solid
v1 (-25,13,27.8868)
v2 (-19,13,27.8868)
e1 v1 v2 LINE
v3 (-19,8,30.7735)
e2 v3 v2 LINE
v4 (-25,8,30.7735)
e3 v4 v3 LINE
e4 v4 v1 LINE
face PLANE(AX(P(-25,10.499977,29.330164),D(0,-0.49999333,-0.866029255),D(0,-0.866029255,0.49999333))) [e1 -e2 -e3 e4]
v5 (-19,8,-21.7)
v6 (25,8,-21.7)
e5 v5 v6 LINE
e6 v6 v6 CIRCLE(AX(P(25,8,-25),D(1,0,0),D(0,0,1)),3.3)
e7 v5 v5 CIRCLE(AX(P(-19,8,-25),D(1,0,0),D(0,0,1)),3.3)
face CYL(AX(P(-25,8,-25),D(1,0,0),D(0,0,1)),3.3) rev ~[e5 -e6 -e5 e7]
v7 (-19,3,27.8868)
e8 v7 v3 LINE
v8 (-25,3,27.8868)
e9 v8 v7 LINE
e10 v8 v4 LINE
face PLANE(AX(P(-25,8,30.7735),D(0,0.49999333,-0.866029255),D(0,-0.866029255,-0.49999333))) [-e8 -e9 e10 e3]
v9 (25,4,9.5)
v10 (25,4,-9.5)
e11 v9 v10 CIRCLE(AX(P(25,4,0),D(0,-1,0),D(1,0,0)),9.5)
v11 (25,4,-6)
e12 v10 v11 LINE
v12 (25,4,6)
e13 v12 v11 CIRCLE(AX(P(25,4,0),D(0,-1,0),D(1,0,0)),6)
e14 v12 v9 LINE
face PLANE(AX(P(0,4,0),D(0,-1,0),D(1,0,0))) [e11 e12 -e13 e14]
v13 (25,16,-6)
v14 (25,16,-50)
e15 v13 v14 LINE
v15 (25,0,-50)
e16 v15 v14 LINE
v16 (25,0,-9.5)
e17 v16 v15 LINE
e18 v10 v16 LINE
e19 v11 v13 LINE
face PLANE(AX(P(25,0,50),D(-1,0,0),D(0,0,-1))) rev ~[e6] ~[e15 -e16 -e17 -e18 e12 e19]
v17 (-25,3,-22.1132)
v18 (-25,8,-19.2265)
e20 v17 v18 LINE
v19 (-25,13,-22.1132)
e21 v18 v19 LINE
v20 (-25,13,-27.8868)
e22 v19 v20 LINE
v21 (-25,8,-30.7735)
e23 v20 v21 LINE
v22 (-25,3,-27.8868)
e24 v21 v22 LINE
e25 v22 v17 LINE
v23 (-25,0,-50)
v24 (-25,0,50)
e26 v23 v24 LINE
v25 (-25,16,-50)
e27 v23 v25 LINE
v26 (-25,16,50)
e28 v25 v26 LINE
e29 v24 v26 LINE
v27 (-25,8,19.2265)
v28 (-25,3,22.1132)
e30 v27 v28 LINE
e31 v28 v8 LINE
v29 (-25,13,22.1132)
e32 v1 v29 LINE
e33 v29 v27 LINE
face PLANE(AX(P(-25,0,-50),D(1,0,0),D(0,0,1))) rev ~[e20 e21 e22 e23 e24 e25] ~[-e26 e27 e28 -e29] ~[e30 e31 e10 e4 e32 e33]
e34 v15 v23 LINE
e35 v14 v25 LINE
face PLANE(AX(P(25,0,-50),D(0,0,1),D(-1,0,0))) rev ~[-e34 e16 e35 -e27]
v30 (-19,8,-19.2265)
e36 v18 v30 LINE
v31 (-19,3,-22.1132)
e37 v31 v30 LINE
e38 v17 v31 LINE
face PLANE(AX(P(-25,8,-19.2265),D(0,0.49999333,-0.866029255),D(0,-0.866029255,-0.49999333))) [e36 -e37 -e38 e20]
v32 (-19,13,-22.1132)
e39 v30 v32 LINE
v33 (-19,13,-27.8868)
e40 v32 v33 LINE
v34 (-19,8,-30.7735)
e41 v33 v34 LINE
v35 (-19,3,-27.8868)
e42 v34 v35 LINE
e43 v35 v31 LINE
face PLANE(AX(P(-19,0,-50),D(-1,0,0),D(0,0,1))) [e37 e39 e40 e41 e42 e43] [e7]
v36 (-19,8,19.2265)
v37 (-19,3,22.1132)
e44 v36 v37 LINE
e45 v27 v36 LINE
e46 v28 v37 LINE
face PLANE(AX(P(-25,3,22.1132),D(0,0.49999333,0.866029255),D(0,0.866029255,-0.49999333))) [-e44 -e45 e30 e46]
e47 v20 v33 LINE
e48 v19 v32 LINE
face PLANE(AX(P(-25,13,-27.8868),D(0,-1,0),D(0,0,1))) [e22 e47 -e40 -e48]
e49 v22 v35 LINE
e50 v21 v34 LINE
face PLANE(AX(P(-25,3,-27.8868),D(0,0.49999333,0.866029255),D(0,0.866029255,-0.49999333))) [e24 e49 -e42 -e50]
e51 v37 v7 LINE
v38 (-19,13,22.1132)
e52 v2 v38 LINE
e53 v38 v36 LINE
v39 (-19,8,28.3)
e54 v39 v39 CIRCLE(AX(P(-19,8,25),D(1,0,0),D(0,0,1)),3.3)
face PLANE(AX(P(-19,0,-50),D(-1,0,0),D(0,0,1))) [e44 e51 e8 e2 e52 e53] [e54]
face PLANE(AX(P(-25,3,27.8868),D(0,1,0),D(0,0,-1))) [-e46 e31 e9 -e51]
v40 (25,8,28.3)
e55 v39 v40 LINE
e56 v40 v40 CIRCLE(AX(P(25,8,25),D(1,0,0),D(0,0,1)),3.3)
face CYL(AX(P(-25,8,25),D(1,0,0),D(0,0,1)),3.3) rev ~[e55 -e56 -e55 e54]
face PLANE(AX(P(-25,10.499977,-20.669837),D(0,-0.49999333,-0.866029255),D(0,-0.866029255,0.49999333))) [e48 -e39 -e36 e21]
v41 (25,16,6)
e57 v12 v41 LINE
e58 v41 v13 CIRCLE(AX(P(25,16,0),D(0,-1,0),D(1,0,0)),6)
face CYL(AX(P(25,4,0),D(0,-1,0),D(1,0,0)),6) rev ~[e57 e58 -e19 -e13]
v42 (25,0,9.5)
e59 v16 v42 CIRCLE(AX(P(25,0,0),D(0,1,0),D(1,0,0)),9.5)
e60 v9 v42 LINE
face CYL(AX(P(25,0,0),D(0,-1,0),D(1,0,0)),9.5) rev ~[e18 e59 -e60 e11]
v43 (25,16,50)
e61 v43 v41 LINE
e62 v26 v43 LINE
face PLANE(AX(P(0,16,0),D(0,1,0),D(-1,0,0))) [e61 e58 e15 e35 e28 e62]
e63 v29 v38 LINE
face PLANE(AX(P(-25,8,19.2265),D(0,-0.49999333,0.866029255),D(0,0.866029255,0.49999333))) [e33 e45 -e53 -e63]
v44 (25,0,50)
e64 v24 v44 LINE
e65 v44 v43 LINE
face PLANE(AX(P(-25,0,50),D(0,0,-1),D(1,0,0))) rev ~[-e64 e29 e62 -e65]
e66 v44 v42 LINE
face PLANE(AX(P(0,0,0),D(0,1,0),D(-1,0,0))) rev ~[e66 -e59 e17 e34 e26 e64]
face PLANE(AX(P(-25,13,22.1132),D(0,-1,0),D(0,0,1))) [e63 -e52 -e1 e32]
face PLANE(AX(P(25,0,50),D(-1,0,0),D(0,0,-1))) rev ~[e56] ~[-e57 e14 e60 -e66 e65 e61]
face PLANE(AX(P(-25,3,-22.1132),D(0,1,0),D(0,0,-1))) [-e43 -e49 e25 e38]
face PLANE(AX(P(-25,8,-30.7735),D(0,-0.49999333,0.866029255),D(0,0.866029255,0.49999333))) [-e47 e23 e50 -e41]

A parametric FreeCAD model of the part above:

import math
import FreeCAD as App
import Part
import Sketcher
Q = App.Units.Quantity


def add_polygon(sketch, points):
    """Adds a closed chain of lines whose ends are joined by coincident constraints."""
    first, n = sketch.GeometryCount, len(points)
    for a, b in zip(points, points[1:] + points[:1]):
        sketch.addGeometry(Part.LineSegment(App.Vector(*a, 0), App.Vector(*b, 0)), False)
    for i in range(n):
        sketch.addConstraint(Sketcher.Constraint("Coincident", first + i, 2, first + (i + 1) % n, 1))

doc = App.newDocument("Part")
body = doc.addObject("PartDesign::Body", "Body")

sketch1 = doc.addObject("Sketcher::SketchObject", "Sketch")
body.addObject(sketch1)
sketch1.AttachmentSupport = (doc.XZ_Plane, [""])
sketch1.MapMode = "FlatFace"
add_polygon(sketch1, [(-25, -50), (-25, 50), (25, 50), (25, -50)])
sketch1.addConstraint(Sketcher.Constraint("Vertical", 0))
sketch1.addConstraint(Sketcher.Constraint("Horizontal", 1))
sketch1.addConstraint(Sketcher.Constraint("Vertical", 2))
sketch1.addConstraint(Sketcher.Constraint("Horizontal", 3))
sketch1.addConstraint(Sketcher.Constraint("Symmetric", 0, 2, 2, 2, -1, 1))
sketch1.addConstraint(Sketcher.Constraint("DistanceX", 1, 1, 1, 2, 50.0))
sketch1.addConstraint(Sketcher.Constraint("DistanceY", 0, 1, 0, 2, 100.0))
pad1 = doc.addObject("PartDesign::Pad", "Pad")
body.addObject(pad1)
pad1.Profile = sketch1
pad1.Length = 16
pad1.Reversed = True

sketch2 = doc.addObject("Sketcher::SketchObject", "Sketch001")
body.addObject(sketch2)
sketch2.AttachmentSupport = (doc.XZ_Plane, [""])
sketch2.MapMode = "FlatFace"
sketch2.addGeometry(Part.Circle(App.Vector(25, 0, 0), App.Vector(0, 0, 1), 9.5), False)
sketch2.addConstraint(Sketcher.Constraint("PointOnObject", 0, 3, -1))
sketch2.addConstraint(Sketcher.Constraint("Diameter", 0, 19.0))
sketch2.addConstraint(Sketcher.Constraint("DistanceX", -1, 1, 0, 3, 25.0))
pocket1 = doc.addObject("PartDesign::Pocket", "Pocket")
body.addObject(pocket1)
pocket1.Profile = sketch2
pocket1.Length = 4

sketch3 = doc.addObject("Sketcher::SketchObject", "Sketch002")
body.addObject(sketch3)
sketch3.AttachmentSupport = (doc.XZ_Plane, [""])
sketch3.MapMode = "FlatFace"
sketch3.AttachmentOffset = App.Placement(App.Vector(0, 0, -4), App.Rotation())
sketch3.addGeometry(Part.LineSegment(App.Vector(25, -6, 0), App.Vector(25, 6, 0)), False)
sketch3.addGeometry(Part.ArcOfCircle(Part.Circle(App.Vector(25, 0, 0), App.Vector(0, 0, 1), 6), math.radians(90), math.radians(270)), False)
sketch3.addConstraint(Sketcher.Constraint("Coincident", 0, 1, 1, 2))
sketch3.addConstraint(Sketcher.Constraint("Coincident", 1, 1, 0, 2))
sketch3.addConstraint(Sketcher.Constraint("Vertical", 0))
sketch3.addConstraint(Sketcher.Constraint("PointOnObject", 1, 3, -1))
sketch3.addConstraint(Sketcher.Constraint("Vertical", 1, 3, 0, 1))
sketch3.addConstraint(Sketcher.Constraint("Radius", 1, 6.0))
sketch3.addConstraint(Sketcher.Constraint("DistanceX", -1, 1, 1, 3, 25.0))
pocket2 = doc.addObject("PartDesign::Pocket", "Pocket001")
body.addObject(pocket2)
pocket2.Profile = sketch3
pocket2.Length = 26

sketch4 = doc.addObject("Sketcher::SketchObject", "Sketch003")
body.addObject(sketch4)
sketch4.AttachmentSupport = (doc.YZ_Plane, [""])
sketch4.MapMode = "FlatFace"
sketch4.AttachmentOffset = App.Placement(App.Vector(0, 0, -25), App.Rotation())
sketch4.addGeometry(Part.Circle(App.Vector(8, -25, 0), App.Vector(0, 0, 1), 3.3), False)
sketch4.addGeometry(Part.Circle(App.Vector(8, 25, 0), App.Vector(0, 0, 1), 3.3), False)
sketch4.addConstraint(Sketcher.Constraint("Equal", 0, 1))
sketch4.addConstraint(Sketcher.Constraint("Symmetric", 0, 3, 1, 3, -1))
sketch4.addConstraint(Sketcher.Constraint("Diameter", 0, 6.6))
sketch4.addConstraint(Sketcher.Constraint("DistanceX", -1, 1, 0, 3, 8.0))
sketch4.addConstraint(Sketcher.Constraint("DistanceY", 0, 3, -1, 1, 25.0))
doc.recompute()
hole = doc.addObject("PartDesign::Hole", "Hole")
body.addObject(hole)
hole.Profile = sketch4
hole.ThreadType = "None"
hole.Diameter = 6.6
hole.DepthType = "ThroughAll"
hole.Reversed = True

sketch5 = doc.addObject("Sketcher::SketchObject", "Sketch004")
body.addObject(sketch5)
sketch5.AttachmentSupport = (doc.YZ_Plane, [""])
sketch5.MapMode = "FlatFace"
sketch5.AttachmentOffset = App.Placement(App.Vector(0, 0, -25), App.Rotation())
add_polygon(sketch5, [(8, -19.2265), (13, -22.1132), (13, -27.8868), (8, -30.7735), (3, -27.8868), (3, -22.1132)])
add_polygon(sketch5, [(8, 30.7735), (13, 27.8868), (13, 22.1132), (8, 19.2265), (3, 22.1132), (3, 27.8868)])
sketch5.addConstraint(Sketcher.Constraint("Vertical", 1))
sketch5.addConstraint(Sketcher.Constraint("Vertical", 4))
sketch5.addConstraint(Sketcher.Constraint("Vertical", 7))
sketch5.addConstraint(Sketcher.Constraint("Vertical", 10))
sketch5.addConstraint(Sketcher.Constraint("Symmetric", 1, 2, 6, 2, -1))
sketch5.addConstraint(Sketcher.Constraint("Symmetric", 5, 2, 8, 2, -1))
sketch5.addConstraint(Sketcher.Constraint("Symmetric", 4, 2, 9, 2, -1))
sketch5.addConstraint(Sketcher.Constraint("Symmetric", 2, 2, 11, 2, -1))
sketch5.addConstraint(Sketcher.Constraint("Parallel", 0, 3))
sketch5.addConstraint(Sketcher.Constraint("Parallel", 2, 5))
sketch5.addConstraint(Sketcher.Constraint("Parallel", 3, 6))
sketch5.addConstraint(Sketcher.Constraint("Parallel", 5, 8))
sketch5.addConstraint(Sketcher.Constraint("Parallel", 8, 11))
sketch5.addConstraint(Sketcher.Constraint("Horizontal", 1, 2, 3, 2))
sketch5.addConstraint(Sketcher.Constraint("Horizontal", 0, 2, 4, 2))
sketch5.addConstraint(Sketcher.Constraint("DistanceX", 3, 2, 1, 2, 10.0))
sketch5.addConstraint(Sketcher.Constraint("Angle", 0, Q("-29.9996 deg")))
sketch5.addConstraint(Sketcher.Constraint("DistanceX", -1, 1, 0, 2, 13.0))
sketch5.addConstraint(Sketcher.Constraint("DistanceY", 0, 2, 6, 2, 50.0))
sketch5.addConstraint(Sketcher.Constraint("DistanceY", 1, 2, 1, 1, 5.7736))
pocket3 = doc.addObject("PartDesign::Pocket", "Pocket002")
body.addObject(pocket3)
pocket3.Profile = sketch5
pocket3.Length = 6
pocket3.Reversed = True

doc.recompute()
